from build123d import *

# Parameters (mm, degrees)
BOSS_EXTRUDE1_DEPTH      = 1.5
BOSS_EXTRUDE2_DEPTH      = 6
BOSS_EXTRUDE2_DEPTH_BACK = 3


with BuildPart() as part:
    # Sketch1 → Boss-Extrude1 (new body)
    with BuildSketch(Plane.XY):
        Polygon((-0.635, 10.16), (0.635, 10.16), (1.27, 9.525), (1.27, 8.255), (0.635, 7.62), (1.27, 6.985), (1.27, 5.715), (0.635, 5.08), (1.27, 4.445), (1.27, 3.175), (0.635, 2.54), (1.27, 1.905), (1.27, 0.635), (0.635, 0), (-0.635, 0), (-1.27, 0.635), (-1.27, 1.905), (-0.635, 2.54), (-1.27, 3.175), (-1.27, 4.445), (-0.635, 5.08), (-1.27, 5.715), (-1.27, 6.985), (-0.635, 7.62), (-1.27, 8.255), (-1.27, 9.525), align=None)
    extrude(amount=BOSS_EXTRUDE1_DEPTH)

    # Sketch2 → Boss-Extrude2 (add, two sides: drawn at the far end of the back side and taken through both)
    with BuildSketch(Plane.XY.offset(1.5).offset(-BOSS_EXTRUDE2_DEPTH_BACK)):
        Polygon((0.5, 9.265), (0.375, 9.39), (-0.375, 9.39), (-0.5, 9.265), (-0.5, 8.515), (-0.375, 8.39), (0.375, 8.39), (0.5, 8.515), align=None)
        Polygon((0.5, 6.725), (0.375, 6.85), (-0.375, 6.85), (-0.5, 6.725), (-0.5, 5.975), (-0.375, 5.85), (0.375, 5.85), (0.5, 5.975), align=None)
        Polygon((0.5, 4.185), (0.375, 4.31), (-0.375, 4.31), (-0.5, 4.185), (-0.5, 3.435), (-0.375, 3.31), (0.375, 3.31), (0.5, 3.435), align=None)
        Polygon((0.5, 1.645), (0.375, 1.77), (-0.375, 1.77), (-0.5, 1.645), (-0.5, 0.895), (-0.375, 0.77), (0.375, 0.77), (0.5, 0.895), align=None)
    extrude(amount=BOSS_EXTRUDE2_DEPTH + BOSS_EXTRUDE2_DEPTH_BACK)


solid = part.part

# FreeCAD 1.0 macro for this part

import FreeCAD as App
import Part
import Sketcher

V = App.Vector
Q = App.Units.Quantity


def add_polygon(sketch, points):
    """Adds a closed chain of lines whose ends are joined by coincident constraints."""
    first, n = sketch.GeometryCount, len(points)
    for a, b in zip(points, points[1:] + points[:1]):
        sketch.addGeometry(Part.LineSegment(App.Vector(*a, 0), App.Vector(*b, 0)), False)
    for i in range(n):
        sketch.addConstraint(Sketcher.Constraint("Coincident", first + i, 2, first + (i + 1) % n, 1))

doc = App.newDocument("Part")
body = doc.addObject("PartDesign::Body", "Body")

sketch1 = doc.addObject("Sketcher::SketchObject", "Sketch")
body.addObject(sketch1)
sketch1.AttachmentSupport = (doc.XY_Plane, [""])
sketch1.MapMode = "FlatFace"
add_polygon(sketch1, [(0.635, 10.16), (-0.635, 10.16), (-1.27, 9.525), (-1.27, 8.255), (-0.635, 7.62), (-1.27, 6.985), (-1.27, 5.715), (-0.635, 5.08), (-1.27, 4.445), (-1.27, 3.175), (-0.635, 2.54), (-1.27, 1.905), (-1.27, 0.635), (-0.635, 0), (0.635, 0), (1.27, 0.635), (1.27, 1.905), (0.635, 2.54), (1.27, 3.175), (1.27, 4.445), (0.635, 5.08), (1.27, 5.715), (1.27, 6.985), (0.635, 7.62), (1.27, 8.255), (1.27, 9.525)])
sketch1.addConstraint(Sketcher.Constraint("Horizontal", 0))
sketch1.addConstraint(Sketcher.Constraint("Vertical", 2))
sketch1.addConstraint(Sketcher.Constraint("Vertical", 5))
sketch1.addConstraint(Sketcher.Constraint("Vertical", 8))
sketch1.addConstraint(Sketcher.Constraint("Vertical", 11))
sketch1.addConstraint(Sketcher.Constraint("Horizontal", 13))
sketch1.addConstraint(Sketcher.Constraint("Vertical", 15))
sketch1.addConstraint(Sketcher.Constraint("Vertical", 18))
sketch1.addConstraint(Sketcher.Constraint("Vertical", 21))
sketch1.addConstraint(Sketcher.Constraint("Vertical", 24))
sketch1.addConstraint(Sketcher.Constraint("Symmetric", 12, 2, 13, 2, -1, 1))
sketch1.addConstraint(Sketcher.Constraint("Symmetric", 11, 2, 14, 2, -2))
sketch1.addConstraint(Sketcher.Constraint("Symmetric", 9, 2, 16, 2, -2))
sketch1.addConstraint(Sketcher.Constraint("Symmetric", 8, 2, 17, 2, -2))
sketch1.addConstraint(Sketcher.Constraint("Symmetric", 6, 2, 19, 2, -2))
sketch1.addConstraint(Sketcher.Constraint("Symmetric", 5, 2, 20, 2, -2))
sketch1.addConstraint(Sketcher.Constraint("Symmetric", 3, 2, 22, 2, -2))
sketch1.addConstraint(Sketcher.Constraint("Symmetric", 2, 2, 23, 2, -2))
sketch1.addConstraint(Sketcher.Constraint("Perpendicular", 1, 3))
sketch1.addConstraint(Sketcher.Constraint("Perpendicular", 3, 4))
sketch1.addConstraint(Sketcher.Constraint("Perpendicular", 4, 6))
sketch1.addConstraint(Sketcher.Constraint("Perpendicular", 6, 7))
sketch1.addConstraint(Sketcher.Constraint("Perpendicular", 7, 9))
sketch1.addConstraint(Sketcher.Constraint("Perpendicular", 9, 10))
sketch1.addConstraint(Sketcher.Constraint("Perpendicular", 10, 12))
sketch1.addConstraint(Sketcher.Constraint("Perpendicular", 12, 14))
sketch1.addConstraint(Sketcher.Constraint("Perpendicular", 14, 16))
sketch1.addConstraint(Sketcher.Constraint("Perpendicular", 17, 19))
sketch1.addConstraint(Sketcher.Constraint("Perpendicular", 20, 22))
sketch1.addConstraint(Sketcher.Constraint("Perpendicular", 23, 25))
sketch1.addConstraint(Sketcher.Constraint("Horizontal", 1, 2, 24, 2))
sketch1.addConstraint(Sketcher.Constraint("Vertical", 0, 2, 3, 2))
sketch1.addConstraint(Sketcher.Constraint("Vertical", 2, 2, 4, 2))
sketch1.addConstraint(Sketcher.Constraint("Vertical", 3, 2, 6, 2))
sketch1.addConstraint(Sketcher.Constraint("Vertical", 5, 2, 7, 2))
sketch1.addConstraint(Sketcher.Constraint("Vertical", 6, 2, 9, 2))
sketch1.addConstraint(Sketcher.Constraint("Vertical", 8, 2, 10, 2))
sketch1.addConstraint(Sketcher.Constraint("Vertical", 9, 2, 12, 2))
sketch1.addConstraint(Sketcher.Constraint("Equal", 13, 2))
sketch1.addConstraint(Sketcher.Constraint("Equal", 2, 5))
sketch1.addConstraint(Sketcher.Constraint("Equal", 5, 8))
sketch1.addConstraint(Sketcher.Constraint("Equal", 8, 11))
sketch1.addConstraint(Sketcher.Constraint("DistanceX", 0, 2, 0, 1, Q("1.27 mm")))
sketch1.addConstraint(Sketcher.Constraint("DistanceY", -1, 1, 0, 2, Q("10.16 mm")))
pad1 = doc.addObject("PartDesign::Pad", "Pad")
body.addObject(pad1)
pad1.Profile = sketch1
pad1.Length = 1.5

sketch2 = doc.addObject("Sketcher::SketchObject", "Sketch001")
body.addObject(sketch2)
sketch2.AttachmentSupport = (doc.XY_Plane, [""])
sketch2.MapMode = "FlatFace"
sketch2.AttachmentOffset = App.Placement(V(0, 0, 1.5), App.Rotation())
add_polygon(sketch2, [(0.5, 9.265), (0.375, 9.39), (-0.375, 9.39), (-0.5, 9.265), (-0.5, 8.515), (-0.375, 8.39), (0.375, 8.39), (0.5, 8.515)])
add_polygon(sketch2, [(0.5, 6.725), (0.375, 6.85), (-0.375, 6.85), (-0.5, 6.725), (-0.5, 5.975), (-0.375, 5.85), (0.375, 5.85), (0.5, 5.975)])
add_polygon(sketch2, [(0.5, 4.185), (0.375, 4.31), (-0.375, 4.31), (-0.5, 4.185), (-0.5, 3.435), (-0.375, 3.31), (0.375, 3.31), (0.5, 3.435)])
add_polygon(sketch2, [(0.5, 1.645), (0.375, 1.77), (-0.375, 1.77), (-0.5, 1.645), (-0.5, 0.895), (-0.375, 0.77), (0.375, 0.77), (0.5, 0.895)])
sketch2.addConstraint(Sketcher.Constraint("Horizontal", 1))
sketch2.addConstraint(Sketcher.Constraint("Vertical", 3))
sketch2.addConstraint(Sketcher.Constraint("Horizontal", 5))
sketch2.addConstraint(Sketcher.Constraint("Vertical", 7))
sketch2.addConstraint(Sketcher.Constraint("Horizontal", 9))
sketch2.addConstraint(Sketcher.Constraint("Vertical", 11))
sketch2.addConstraint(Sketcher.Constraint("Horizontal", 13))
sketch2.addConstraint(Sketcher.Constraint("Vertical", 15))
sketch2.addConstraint(Sketcher.Constraint("Horizontal", 17))
sketch2.addConstraint(Sketcher.Constraint("Vertical", 19))
sketch2.addConstraint(Sketcher.Constraint("Horizontal", 21))
sketch2.addConstraint(Sketcher.Constraint("Vertical", 23))
sketch2.addConstraint(Sketcher.Constraint("Horizontal", 25))
sketch2.addConstraint(Sketcher.Constraint("Vertical", 27))
sketch2.addConstraint(Sketcher.Constraint("Horizontal", 29))
sketch2.addConstraint(Sketcher.Constraint("Vertical", 31))
sketch2.addConstraint(Sketcher.Constraint("Symmetric", 3, 2, 6, 2, -2))
sketch2.addConstraint(Sketcher.Constraint("Symmetric", 11, 2, 14, 2, -2))
sketch2.addConstraint(Sketcher.Constraint("Symmetric", 19, 2, 22, 2, -2))
sketch2.addConstraint(Sketcher.Constraint("Symmetric", 27, 2, 30, 2, -2))
sketch2.addConstraint(Sketcher.Constraint("Perpendicular", 0, 2))
sketch2.addConstraint(Sketcher.Constraint("Perpendicular", 2, 4))
sketch2.addConstraint(Sketcher.Constraint("Perpendicular", 4, 6))
sketch2.addConstraint(Sketcher.Constraint("Perpendicular", 6, 8))
sketch2.addConstraint(Sketcher.Constraint("Perpendicular", 8, 10))
sketch2.addConstraint(Sketcher.Constraint("Perpendicular", 10, 12))
sketch2.addConstraint(Sketcher.Constraint("Perpendicular", 12, 14))
sketch2.addConstraint(Sketcher.Constraint("Perpendicular", 14, 16))
sketch2.addConstraint(Sketcher.Constraint("Perpendicular", 16, 18))
sketch2.addConstraint(Sketcher.Constraint("Perpendicular", 18, 20))
sketch2.addConstraint(Sketcher.Constraint("Perpendicular", 20, 22))
sketch2.addConstraint(Sketcher.Constraint("Perpendicular", 22, 24))
sketch2.addConstraint(Sketcher.Constraint("Perpendicular", 24, 26))
sketch2.addConstraint(Sketcher.Constraint("Perpendicular", 26, 28))
sketch2.addConstraint(Sketcher.Constraint("Perpendicular", 28, 30))
sketch2.addConstraint(Sketcher.Constraint("Horizontal", 2, 2, 7, 2))
sketch2.addConstraint(Sketcher.Constraint("Horizontal", 10, 2, 15, 2))
sketch2.addConstraint(Sketcher.Constraint("Horizontal", 18, 2, 23, 2))
sketch2.addConstraint(Sketcher.Constraint("Horizontal", 26, 2, 31, 2))
sketch2.addConstraint(Sketcher.Constraint("Vertical", 1, 2, 4, 2))
sketch2.addConstraint(Sketcher.Constraint("Vertical", 0, 2, 5, 2))
sketch2.addConstraint(Sketcher.Constraint("Vertical", 5, 2, 8, 2))
sketch2.addConstraint(Sketcher.Constraint("Vertical", 3, 2, 10, 2))
sketch2.addConstraint(Sketcher.Constraint("Vertical", 9, 2, 12, 2))
sketch2.addConstraint(Sketcher.Constraint("Vertical", 13, 2, 16, 2))
sketch2.addConstraint(Sketcher.Constraint("Vertical", 11, 2, 18, 2))
sketch2.addConstraint(Sketcher.Constraint("Vertical", 17, 2, 20, 2))
sketch2.addConstraint(Sketcher.Constraint("Vertical", 21, 2, 24, 2))
sketch2.addConstraint(Sketcher.Constraint("Vertical", 19, 2, 26, 2))
sketch2.addConstraint(Sketcher.Constraint("Vertical", 25, 2, 28, 2))
sketch2.addConstraint(Sketcher.Constraint("Equal", 29, 3))
sketch2.addConstraint(Sketcher.Constraint("Equal", 7, 11))
sketch2.addConstraint(Sketcher.Constraint("Equal", 15, 19))
sketch2.addConstraint(Sketcher.Constraint("Equal", 23, 27))
sketch2.addConstraint(Sketcher.Constraint("DistanceY", 4, 2, 1, 2, Q("1 mm")))
sketch2.addConstraint(Sketcher.Constraint("DistanceX", 1, 2, 1, 1, Q("0.75 mm")))
sketch2.addConstraint(Sketcher.Constraint("DistanceY", -1, 1, 0, 2, Q("9.39 mm")))
sketch2.addConstraint(Sketcher.Constraint("DistanceY", -1, 1, 8, 2, Q("6.85 mm")))
sketch2.addConstraint(Sketcher.Constraint("DistanceY", -1, 1, 16, 2, Q("4.31 mm")))
sketch2.addConstraint(Sketcher.Constraint("DistanceY", -1, 1, 24, 2, Q("1.77 mm")))
pad2 = doc.addObject("PartDesign::Pad", "Pad001")
body.addObject(pad2)
pad2.Profile = sketch2
pad2.Type = "TwoLengths"
pad2.Length = 6
pad2.Length2 = 3

doc.recompute()
